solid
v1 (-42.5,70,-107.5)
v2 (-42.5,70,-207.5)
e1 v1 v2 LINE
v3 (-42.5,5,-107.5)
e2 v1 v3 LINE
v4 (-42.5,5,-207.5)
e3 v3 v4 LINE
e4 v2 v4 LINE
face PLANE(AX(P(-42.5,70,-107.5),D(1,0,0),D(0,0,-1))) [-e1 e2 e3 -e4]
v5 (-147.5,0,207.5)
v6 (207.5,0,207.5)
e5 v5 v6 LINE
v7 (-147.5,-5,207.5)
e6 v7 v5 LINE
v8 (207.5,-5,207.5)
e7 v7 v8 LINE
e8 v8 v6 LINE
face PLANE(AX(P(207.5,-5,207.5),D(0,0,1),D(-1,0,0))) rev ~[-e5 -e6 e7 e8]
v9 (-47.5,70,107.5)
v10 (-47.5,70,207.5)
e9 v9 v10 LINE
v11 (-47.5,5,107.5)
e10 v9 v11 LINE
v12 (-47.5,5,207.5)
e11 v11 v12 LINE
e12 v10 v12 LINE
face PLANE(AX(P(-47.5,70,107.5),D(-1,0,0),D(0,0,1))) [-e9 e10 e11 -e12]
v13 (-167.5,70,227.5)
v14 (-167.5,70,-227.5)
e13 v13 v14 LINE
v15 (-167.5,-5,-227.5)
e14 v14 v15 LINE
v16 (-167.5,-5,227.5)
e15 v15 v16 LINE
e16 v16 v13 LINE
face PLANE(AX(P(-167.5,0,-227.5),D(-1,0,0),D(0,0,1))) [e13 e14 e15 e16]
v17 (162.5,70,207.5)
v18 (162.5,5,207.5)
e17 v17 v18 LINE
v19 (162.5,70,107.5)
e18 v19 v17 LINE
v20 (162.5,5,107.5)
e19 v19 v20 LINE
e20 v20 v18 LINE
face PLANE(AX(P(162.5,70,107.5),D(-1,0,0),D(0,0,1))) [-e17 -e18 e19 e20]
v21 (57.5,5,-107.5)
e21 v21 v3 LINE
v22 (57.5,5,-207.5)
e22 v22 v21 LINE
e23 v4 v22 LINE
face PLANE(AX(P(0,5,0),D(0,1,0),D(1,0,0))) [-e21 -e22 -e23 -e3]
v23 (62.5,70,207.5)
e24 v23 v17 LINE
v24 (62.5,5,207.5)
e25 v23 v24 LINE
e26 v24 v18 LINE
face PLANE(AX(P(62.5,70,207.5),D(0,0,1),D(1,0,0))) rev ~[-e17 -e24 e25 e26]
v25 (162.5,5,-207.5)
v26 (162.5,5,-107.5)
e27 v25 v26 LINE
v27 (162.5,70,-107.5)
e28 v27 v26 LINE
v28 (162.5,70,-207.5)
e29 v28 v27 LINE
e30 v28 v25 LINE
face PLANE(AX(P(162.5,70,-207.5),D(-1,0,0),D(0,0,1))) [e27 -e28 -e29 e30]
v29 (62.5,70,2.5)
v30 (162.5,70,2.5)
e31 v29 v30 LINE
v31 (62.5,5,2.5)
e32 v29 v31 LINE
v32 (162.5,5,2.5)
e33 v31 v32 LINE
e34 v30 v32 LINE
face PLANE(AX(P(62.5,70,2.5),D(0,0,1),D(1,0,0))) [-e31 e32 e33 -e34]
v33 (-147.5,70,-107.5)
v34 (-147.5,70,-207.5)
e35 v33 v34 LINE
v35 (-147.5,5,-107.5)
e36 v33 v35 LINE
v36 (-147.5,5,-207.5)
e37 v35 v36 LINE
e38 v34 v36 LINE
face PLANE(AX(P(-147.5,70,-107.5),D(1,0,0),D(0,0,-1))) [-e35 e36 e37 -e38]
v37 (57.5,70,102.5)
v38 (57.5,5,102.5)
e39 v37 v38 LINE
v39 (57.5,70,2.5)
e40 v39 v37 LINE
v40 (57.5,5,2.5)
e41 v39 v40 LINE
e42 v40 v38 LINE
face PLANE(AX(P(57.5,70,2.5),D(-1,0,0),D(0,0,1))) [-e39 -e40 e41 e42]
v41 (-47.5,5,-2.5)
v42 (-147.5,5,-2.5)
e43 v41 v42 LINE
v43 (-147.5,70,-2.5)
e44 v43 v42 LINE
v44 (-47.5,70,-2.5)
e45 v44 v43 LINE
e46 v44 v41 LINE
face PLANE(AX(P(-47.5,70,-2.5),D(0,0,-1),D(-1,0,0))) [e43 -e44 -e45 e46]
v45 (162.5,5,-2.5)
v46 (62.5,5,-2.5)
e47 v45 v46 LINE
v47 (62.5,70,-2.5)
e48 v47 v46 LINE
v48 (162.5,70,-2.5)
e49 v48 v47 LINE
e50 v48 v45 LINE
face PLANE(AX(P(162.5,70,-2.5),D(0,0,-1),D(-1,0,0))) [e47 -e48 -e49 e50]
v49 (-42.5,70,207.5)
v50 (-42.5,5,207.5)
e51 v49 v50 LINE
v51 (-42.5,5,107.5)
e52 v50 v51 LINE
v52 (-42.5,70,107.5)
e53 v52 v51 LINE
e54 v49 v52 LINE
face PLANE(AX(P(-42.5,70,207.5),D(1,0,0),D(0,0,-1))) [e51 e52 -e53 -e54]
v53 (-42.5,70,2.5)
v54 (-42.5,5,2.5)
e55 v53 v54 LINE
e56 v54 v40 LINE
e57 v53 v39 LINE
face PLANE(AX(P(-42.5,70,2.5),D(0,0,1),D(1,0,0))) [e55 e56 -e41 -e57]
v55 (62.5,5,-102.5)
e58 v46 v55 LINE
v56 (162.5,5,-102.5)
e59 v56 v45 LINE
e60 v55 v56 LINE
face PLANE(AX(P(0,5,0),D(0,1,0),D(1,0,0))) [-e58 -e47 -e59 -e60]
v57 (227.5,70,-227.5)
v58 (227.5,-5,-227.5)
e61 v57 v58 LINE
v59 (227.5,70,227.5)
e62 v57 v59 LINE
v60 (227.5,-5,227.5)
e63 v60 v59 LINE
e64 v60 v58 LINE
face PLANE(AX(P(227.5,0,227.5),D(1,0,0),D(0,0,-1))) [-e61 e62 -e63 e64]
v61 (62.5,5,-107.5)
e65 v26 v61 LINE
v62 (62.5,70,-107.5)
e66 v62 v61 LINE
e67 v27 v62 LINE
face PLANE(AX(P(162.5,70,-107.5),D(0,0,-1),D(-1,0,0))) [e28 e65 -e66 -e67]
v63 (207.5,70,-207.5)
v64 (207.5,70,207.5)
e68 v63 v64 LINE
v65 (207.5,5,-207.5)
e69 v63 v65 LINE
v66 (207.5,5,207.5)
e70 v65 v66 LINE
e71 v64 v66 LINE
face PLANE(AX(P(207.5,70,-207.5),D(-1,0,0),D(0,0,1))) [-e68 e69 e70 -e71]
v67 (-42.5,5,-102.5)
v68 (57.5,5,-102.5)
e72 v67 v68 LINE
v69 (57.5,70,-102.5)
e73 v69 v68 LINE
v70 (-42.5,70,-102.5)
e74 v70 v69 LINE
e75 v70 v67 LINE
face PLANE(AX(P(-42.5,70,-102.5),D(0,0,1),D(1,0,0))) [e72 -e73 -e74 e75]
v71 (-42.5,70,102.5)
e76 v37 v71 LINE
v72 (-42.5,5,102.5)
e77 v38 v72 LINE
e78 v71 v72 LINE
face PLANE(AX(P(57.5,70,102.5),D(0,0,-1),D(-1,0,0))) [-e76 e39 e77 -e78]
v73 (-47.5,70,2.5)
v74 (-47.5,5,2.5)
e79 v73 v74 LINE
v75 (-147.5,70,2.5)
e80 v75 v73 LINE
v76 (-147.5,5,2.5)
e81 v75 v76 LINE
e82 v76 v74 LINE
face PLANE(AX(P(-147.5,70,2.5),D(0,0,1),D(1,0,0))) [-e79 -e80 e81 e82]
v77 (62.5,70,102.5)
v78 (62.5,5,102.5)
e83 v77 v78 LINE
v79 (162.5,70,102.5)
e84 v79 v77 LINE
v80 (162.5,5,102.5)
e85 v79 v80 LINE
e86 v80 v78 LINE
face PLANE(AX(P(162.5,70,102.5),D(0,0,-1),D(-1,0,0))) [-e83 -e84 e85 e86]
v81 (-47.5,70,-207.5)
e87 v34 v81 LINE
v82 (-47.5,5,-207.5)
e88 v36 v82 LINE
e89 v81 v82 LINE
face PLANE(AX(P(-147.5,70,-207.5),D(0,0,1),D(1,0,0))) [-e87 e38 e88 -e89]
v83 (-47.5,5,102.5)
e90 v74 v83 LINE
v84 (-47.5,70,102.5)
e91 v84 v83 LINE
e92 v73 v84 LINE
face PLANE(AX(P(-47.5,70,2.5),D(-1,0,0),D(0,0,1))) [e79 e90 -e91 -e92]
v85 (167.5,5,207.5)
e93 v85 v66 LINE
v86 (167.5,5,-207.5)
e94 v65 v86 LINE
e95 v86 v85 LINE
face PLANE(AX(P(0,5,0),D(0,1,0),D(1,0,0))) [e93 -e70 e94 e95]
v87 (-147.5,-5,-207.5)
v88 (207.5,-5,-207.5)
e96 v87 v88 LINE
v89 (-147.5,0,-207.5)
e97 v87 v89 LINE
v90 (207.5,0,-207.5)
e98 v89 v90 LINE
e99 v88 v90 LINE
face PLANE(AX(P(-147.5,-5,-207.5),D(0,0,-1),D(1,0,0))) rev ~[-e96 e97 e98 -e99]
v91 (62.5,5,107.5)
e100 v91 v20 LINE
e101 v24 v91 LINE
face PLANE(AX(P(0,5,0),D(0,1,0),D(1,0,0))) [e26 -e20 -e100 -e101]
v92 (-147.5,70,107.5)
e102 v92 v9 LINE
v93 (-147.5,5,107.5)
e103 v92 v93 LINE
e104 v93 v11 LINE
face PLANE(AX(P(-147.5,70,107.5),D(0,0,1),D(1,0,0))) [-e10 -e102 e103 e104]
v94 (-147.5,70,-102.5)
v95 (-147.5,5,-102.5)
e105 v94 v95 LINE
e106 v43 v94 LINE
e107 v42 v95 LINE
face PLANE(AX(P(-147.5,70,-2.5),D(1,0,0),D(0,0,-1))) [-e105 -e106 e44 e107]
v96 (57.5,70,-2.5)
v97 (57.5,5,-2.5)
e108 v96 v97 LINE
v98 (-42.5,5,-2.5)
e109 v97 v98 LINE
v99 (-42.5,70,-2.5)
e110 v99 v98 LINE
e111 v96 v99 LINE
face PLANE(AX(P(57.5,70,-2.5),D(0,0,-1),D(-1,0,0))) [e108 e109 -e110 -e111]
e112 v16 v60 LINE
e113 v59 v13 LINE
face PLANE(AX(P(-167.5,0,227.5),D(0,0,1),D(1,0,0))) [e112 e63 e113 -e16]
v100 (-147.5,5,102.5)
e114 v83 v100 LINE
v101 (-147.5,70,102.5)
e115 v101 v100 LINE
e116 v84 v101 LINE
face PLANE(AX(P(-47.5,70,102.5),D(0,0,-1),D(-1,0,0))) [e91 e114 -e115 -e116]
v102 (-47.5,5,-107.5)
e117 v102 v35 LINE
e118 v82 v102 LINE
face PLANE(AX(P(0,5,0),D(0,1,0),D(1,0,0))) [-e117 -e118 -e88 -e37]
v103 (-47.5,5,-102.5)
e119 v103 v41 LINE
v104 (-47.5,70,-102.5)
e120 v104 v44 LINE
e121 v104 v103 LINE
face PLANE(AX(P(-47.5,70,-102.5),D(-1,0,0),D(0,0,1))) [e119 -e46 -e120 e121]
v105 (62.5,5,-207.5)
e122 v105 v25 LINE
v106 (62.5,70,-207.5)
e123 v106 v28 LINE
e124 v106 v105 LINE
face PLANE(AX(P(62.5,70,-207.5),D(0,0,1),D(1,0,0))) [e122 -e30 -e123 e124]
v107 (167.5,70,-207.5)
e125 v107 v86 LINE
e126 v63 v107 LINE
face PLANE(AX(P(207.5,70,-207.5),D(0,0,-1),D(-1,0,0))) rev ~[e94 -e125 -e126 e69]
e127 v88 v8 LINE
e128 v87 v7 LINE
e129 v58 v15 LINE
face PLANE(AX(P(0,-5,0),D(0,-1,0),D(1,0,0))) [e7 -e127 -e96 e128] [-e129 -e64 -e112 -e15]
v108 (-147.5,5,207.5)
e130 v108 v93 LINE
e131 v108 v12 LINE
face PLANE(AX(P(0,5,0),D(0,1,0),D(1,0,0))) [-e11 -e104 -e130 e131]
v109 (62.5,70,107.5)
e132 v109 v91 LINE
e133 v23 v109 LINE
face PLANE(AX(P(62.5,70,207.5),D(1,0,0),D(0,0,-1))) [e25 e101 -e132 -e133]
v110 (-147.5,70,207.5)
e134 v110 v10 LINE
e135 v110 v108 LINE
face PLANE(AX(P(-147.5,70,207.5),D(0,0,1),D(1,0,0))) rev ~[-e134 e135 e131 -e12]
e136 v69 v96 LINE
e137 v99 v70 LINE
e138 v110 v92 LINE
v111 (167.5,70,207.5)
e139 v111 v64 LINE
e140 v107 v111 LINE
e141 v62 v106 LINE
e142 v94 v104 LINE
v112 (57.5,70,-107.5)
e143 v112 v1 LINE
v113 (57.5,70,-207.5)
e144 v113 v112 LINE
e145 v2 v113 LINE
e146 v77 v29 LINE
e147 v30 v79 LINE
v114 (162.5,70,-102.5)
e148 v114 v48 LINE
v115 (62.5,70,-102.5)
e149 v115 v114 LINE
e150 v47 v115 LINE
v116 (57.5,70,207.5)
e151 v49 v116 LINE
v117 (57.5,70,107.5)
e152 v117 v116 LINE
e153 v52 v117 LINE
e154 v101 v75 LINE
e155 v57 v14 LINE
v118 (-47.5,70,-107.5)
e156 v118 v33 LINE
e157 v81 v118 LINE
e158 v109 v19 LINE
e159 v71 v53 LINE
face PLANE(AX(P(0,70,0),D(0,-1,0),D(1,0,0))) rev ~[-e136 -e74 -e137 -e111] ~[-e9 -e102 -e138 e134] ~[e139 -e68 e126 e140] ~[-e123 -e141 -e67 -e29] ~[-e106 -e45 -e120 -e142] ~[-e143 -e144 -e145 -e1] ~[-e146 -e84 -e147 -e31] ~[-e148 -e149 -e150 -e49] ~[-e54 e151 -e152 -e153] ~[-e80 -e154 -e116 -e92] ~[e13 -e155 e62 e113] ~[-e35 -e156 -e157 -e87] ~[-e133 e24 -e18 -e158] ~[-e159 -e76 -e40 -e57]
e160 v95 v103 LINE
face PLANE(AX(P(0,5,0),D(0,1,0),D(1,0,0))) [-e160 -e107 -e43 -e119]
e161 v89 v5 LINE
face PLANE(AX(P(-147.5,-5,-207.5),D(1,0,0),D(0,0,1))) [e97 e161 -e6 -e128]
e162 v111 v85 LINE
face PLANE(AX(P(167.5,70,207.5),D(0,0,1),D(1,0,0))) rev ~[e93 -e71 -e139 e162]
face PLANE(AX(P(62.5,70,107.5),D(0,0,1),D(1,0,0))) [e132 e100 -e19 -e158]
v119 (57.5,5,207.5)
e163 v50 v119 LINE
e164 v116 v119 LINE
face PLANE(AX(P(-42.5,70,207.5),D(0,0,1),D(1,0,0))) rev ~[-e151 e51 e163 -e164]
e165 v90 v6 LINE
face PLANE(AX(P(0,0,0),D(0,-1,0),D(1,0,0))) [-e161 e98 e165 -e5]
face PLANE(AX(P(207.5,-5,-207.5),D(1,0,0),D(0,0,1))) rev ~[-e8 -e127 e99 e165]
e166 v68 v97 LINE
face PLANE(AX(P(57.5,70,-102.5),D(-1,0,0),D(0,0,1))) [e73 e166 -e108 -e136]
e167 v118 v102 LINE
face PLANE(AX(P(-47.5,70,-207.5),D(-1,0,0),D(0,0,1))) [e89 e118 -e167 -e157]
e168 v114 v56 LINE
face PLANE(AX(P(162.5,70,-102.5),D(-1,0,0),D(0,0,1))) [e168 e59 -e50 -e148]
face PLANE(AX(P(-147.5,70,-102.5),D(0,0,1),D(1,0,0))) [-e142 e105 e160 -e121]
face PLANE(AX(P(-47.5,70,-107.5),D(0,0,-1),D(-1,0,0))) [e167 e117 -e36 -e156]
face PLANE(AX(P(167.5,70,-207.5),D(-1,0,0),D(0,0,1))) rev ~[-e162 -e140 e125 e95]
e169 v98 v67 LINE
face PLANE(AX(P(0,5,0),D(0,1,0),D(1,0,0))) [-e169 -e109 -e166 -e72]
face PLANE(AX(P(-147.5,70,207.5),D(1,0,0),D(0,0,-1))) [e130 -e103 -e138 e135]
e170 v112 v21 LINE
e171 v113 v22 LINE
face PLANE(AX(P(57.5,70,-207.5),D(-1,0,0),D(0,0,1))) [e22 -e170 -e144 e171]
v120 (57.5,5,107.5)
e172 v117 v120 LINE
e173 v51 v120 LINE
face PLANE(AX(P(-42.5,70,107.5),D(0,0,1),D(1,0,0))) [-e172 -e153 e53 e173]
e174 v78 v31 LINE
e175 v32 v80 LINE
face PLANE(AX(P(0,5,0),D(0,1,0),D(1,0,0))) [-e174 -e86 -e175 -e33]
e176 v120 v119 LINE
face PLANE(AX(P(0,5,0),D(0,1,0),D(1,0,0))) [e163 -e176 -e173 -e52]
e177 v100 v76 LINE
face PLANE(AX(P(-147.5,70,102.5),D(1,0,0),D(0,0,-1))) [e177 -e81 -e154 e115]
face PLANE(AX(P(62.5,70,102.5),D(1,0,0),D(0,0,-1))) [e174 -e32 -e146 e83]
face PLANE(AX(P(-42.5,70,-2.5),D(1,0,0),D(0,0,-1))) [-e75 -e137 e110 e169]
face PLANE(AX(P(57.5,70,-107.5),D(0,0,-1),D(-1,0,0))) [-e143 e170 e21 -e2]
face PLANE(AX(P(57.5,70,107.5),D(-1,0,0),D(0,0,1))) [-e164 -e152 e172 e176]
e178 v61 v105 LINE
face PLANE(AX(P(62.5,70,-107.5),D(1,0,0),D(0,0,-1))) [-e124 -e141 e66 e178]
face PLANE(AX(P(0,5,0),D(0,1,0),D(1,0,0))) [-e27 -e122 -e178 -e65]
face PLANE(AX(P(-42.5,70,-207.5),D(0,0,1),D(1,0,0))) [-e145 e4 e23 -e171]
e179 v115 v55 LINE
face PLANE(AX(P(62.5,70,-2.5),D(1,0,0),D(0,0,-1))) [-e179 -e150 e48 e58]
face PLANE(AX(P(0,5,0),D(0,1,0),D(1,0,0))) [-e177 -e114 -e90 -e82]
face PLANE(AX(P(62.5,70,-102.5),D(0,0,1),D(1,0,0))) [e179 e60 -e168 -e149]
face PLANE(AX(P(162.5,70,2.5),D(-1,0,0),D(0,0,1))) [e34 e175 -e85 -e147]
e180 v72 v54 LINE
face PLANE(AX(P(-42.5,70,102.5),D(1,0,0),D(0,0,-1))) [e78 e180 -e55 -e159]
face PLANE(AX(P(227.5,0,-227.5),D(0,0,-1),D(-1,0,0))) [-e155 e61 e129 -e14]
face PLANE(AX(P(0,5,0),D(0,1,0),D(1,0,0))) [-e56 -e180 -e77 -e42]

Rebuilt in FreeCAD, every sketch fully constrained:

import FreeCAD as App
import Part
import Sketcher
from FreeCAD import Vector
Q = App.Units.Quantity


def add_polygon(sketch, points):
    """Adds a closed chain of lines whose ends are joined by coincident constraints."""
    first, n = sketch.GeometryCount, len(points)
    for a, b in zip(points, points[1:] + points[:1]):
        sketch.addGeometry(Part.LineSegment(App.Vector(*a, 0), App.Vector(*b, 0)), False)
    for i in range(n):
        sketch.addConstraint(Sketcher.Constraint("Coincident", first + i, 2, first + (i + 1) % n, 1))

doc = App.newDocument("Part")
body = doc.addObject("PartDesign::Body", "Body")

# Sketch on XZ plane
sketch1 = body.newObject("Sketcher::SketchObject", "Sketch")
sketch1.AttachmentSupport = (doc.getObject("XZ_Plane"), [""])
sketch1.MapMode = "FlatFace"
add_polygon(sketch1, [(167.5, -227.5), (-167.5, -227.5), (-167.5, 227.5), (167.5, 227.5)])  # lines 0-3
sketch1.addConstraint([
    Sketcher.Constraint("Horizontal", 0),
    Sketcher.Constraint("Vertical", 1),
    Sketcher.Constraint("Horizontal", 2),
    Sketcher.Constraint("Vertical", 3),
    Sketcher.Constraint("Symmetric", 0, 2, 2, 2, -1, 1),
    Sketcher.Constraint("DistanceX", 0, 2, 0, 1, Q("335 mm")),
    Sketcher.Constraint("DistanceY", 1, 1, 1, 2, Q("455 mm")),
])
pad1 = body.newObject("PartDesign::Pad", "Pad")
pad1.Profile = sketch1
pad1.Length = 70
pad1.Reversed = True

# Sketch on XZ plane
sketch2 = body.newObject("Sketcher::SketchObject", "Sketch001")
sketch2.AttachmentSupport = (doc.getObject("XZ_Plane"), [""])
sketch2.MapMode = "FlatFace"
sketch2.AttachmentOffset = App.Placement(Vector(0, 0, -70), App.Rotation())
add_polygon(sketch2, [(162.5, -107.5), (162.5, -207.5), (62.5, -207.5), (62.5, -107.5)])  # lines 0-3
add_polygon(sketch2, [(62.5, 207.5), (162.5, 207.5), (162.5, 107.5), (62.5, 107.5)])  # lines 4-7
add_polygon(sketch2, [(-47.5, -207.5), (-147.5, -207.5), (-147.5, -107.5), (-47.5, -107.5)])  # lines 8-11
add_polygon(sketch2, [(57.5, -107.5), (57.5, -207.5), (-42.5, -207.5), (-42.5, -107.5)])  # lines 12-15
add_polygon(sketch2, [(162.5, -2.5), (162.5, -102.5), (62.5, -102.5), (62.5, -2.5)])  # lines 16-19
add_polygon(sketch2, [(-147.5, 107.5), (-147.5, 207.5), (-47.5, 207.5), (-47.5, 107.5)])  # lines 20-23
add_polygon(sketch2, [(-42.5, 207.5), (57.5, 207.5), (57.5, 107.5), (-42.5, 107.5)])  # lines 24-27
add_polygon(sketch2, [(62.5, 102.5), (162.5, 102.5), (162.5, 2.5), (62.5, 2.5)])  # lines 28-31
add_polygon(sketch2, [(-147.5, -102.5), (-147.5, -2.5), (-47.5, -2.5), (-47.5, -102.5)])  # lines 32-35
add_polygon(sketch2, [(-42.5, -102.5), (-42.5, -2.5), (57.5, -2.5), (57.5, -102.5)])  # lines 36-39
add_polygon(sketch2, [(-147.5, 2.5), (-147.5, 102.5), (-47.5, 102.5), (-47.5, 2.5)])  # lines 40-43
add_polygon(sketch2, [(-42.5, 2.5), (-42.5, 102.5), (57.5, 102.5), (57.5, 2.5)])  # lines 44-47
sketch2.addConstraint([
    Sketcher.Constraint("Vertical", 0),
    Sketcher.Constraint("Horizontal", 1),
    Sketcher.Constraint("Vertical", 2),
    Sketcher.Constraint("Horizontal", 3),
    Sketcher.Constraint("Horizontal", 4),
    Sketcher.Constraint("Vertical", 5),
    Sketcher.Constraint("Horizontal", 6),
    Sketcher.Constraint("Vertical", 7),
    Sketcher.Constraint("Horizontal", 8),
    Sketcher.Constraint("Vertical", 9),
    Sketcher.Constraint("Horizontal", 10),
    Sketcher.Constraint("Vertical", 11),
    Sketcher.Constraint("Vertical", 12),
    Sketcher.Constraint("Horizontal", 13),
    Sketcher.Constraint("Vertical", 14),
    Sketcher.Constraint("Horizontal", 15),
    Sketcher.Constraint("Vertical", 16),
    Sketcher.Constraint("Horizontal", 17),
    Sketcher.Constraint("Vertical", 18),
    Sketcher.Constraint("Horizontal", 19),
    Sketcher.Constraint("Vertical", 20),
    Sketcher.Constraint("Horizontal", 21),
    Sketcher.Constraint("Vertical", 22),
    Sketcher.Constraint("Horizontal", 23),
    Sketcher.Constraint("Horizontal", 24),
    Sketcher.Constraint("Vertical", 25),
    Sketcher.Constraint("Horizontal", 26),
    Sketcher.Constraint("Vertical", 27),
    Sketcher.Constraint("Horizontal", 28),
    Sketcher.Constraint("Vertical", 29),
    Sketcher.Constraint("Horizontal", 30),
    Sketcher.Constraint("Vertical", 31),
    Sketcher.Constraint("Vertical", 32),
    Sketcher.Constraint("Horizontal", 33),
    Sketcher.Constraint("Vertical", 34),
    Sketcher.Constraint("Horizontal", 35),
    Sketcher.Constraint("Vertical", 36),
    Sketcher.Constraint("Horizontal", 37),
    Sketcher.Constraint("Vertical", 38),
    Sketcher.Constraint("Horizontal", 39),
    Sketcher.Constraint("Vertical", 40),
    Sketcher.Constraint("Horizontal", 41),
    Sketcher.Constraint("Vertical", 42),
    Sketcher.Constraint("Horizontal", 43),
    Sketcher.Constraint("Vertical", 44),
    Sketcher.Constraint("Horizontal", 45),
    Sketcher.Constraint("Vertical", 46),
    Sketcher.Constraint("Horizontal", 47),
    Sketcher.Constraint("Symmetric", 0, 2, 4, 2, -1),
    Sketcher.Constraint("Symmetric", 2, 2, 6, 2, -1),
    Sketcher.Constraint("Symmetric", 8, 2, 20, 2, -1),
    Sketcher.Constraint("Symmetric", 10, 2, 22, 2, -1),
    Sketcher.Constraint("Symmetric", 12, 2, 24, 2, -1),
    Sketcher.Constraint("Symmetric", 14, 2, 26, 2, -1),
    Sketcher.Constraint("Symmetric", 16, 2, 28, 2, -1),
    Sketcher.Constraint("Symmetric", 18, 2, 30, 2, -1),
    Sketcher.Constraint("Symmetric", 35, 2, 40, 2, -1),
    Sketcher.Constraint("Symmetric", 33, 2, 42, 2, -1),
    Sketcher.Constraint("Symmetric", 39, 2, 44, 2, -1),
    Sketcher.Constraint("Symmetric", 37, 2, 46, 2, -1),
    Sketcher.Constraint("Horizontal", 1, 2, 8, 2),
    Sketcher.Constraint("Horizontal", 3, 2, 9, 2),
    Sketcher.Constraint("Horizontal", 11, 2, 12, 2),
    Sketcher.Constraint("Horizontal", 10, 2, 14, 2),
    Sketcher.Constraint("Horizontal", 19, 2, 32, 2),
    Sketcher.Constraint("Horizontal", 17, 2, 34, 2),
    Sketcher.Constraint("Horizontal", 33, 2, 36, 2),
    Sketcher.Constraint("Horizontal", 35, 2, 38, 2),
    Sketcher.Constraint("Vertical", 5, 2, 16, 2),
    Sketcher.Constraint("Vertical", 7, 2, 17, 2),
    Sketcher.Constraint("Vertical", 23, 2, 32, 2),
    Sketcher.Constraint("Vertical", 22, 2, 33, 2),
    Sketcher.Constraint("Vertical", 27, 2, 36, 2),
    Sketcher.Constraint("Vertical", 25, 2, 37, 2),
    Sketcher.Constraint("Equal", 6, 8),
    Sketcher.Constraint("Equal", 10, 13),
    Sketcher.Constraint("Equal", 47, 0),
    Sketcher.Constraint("Equal", 14, 16),
    Sketcher.Constraint("DistanceX", 1, 2, 1, 1, Q("100 mm")),
    Sketcher.Constraint("DistanceX", 12, 2, 1, 2, Q("5 mm")),
    Sketcher.Constraint("DistanceX", 11, 2, 12, 2, Q("105 mm")),
    Sketcher.Constraint("DistanceY", 3, 2, 16, 2, Q("5 mm")),
    Sketcher.Constraint("DistanceY", 19, 2, 28, 2, Q("105 mm")),
    Sketcher.Constraint("DistanceX", -1, 1, 0, 2, Q("162.5 mm")),
])
pocket1 = body.newObject("PartDesign::Pocket", "Pocket")
pocket1.Profile = sketch2
pocket1.Length = 65
pocket1.Reversed = True

# Sketch on XZ plane
sketch3 = body.newObject("Sketcher::SketchObject", "Sketch002")
sketch3.AttachmentSupport = (doc.getObject("XZ_Plane"), [""])
sketch3.MapMode = "FlatFace"
add_polygon(sketch3, [(167.5, 227.5), (167.5, -227.5), (227.5, -227.5), (227.5, 227.5)])  # lines 0-3
sketch3.addConstraint([
    Sketcher.Constraint("Vertical", 0),
    Sketcher.Constraint("Horizontal", 1),
    Sketcher.Constraint("Vertical", 2),
    Sketcher.Constraint("Horizontal", 3),
    Sketcher.Constraint("DistanceX", 1, 1, 1, 2, Q("60 mm")),
    Sketcher.Constraint("DistanceY", 0, 2, 0, 1, Q("455 mm")),
    Sketcher.Constraint("DistanceX", -1, 1, 0, 2, Q("167.5 mm")),
    Sketcher.Constraint("DistanceY", 0, 2, -1, 1, Q("227.5 mm")),
])
pad2 = body.newObject("PartDesign::Pad", "Pad001")
pad2.Profile = sketch3
pad2.Length = 70
pad2.Reversed = True

# Sketch on XZ plane
sketch4 = body.newObject("Sketcher::SketchObject", "Sketch003")
sketch4.AttachmentSupport = (doc.getObject("XZ_Plane"), [""])
sketch4.MapMode = "FlatFace"
sketch4.AttachmentOffset = App.Placement(Vector(0, 0, -70), App.Rotation())
add_polygon(sketch4, [(207.5, 207.5), (207.5, -207.5), (167.5, -207.5), (167.5, 207.5)])  # lines 0-3
sketch4.addConstraint([
    Sketcher.Constraint("Vertical", 0),
    Sketcher.Constraint("Horizontal", 1),
    Sketcher.Constraint("Vertical", 2),
    Sketcher.Constraint("Horizontal", 3),
    Sketcher.Constraint("DistanceX", 1, 2, 1, 1, Q("40 mm")),
    Sketcher.Constraint("DistanceY", 0, 2, 0, 1, Q("415 mm")),
    Sketcher.Constraint("DistanceX", -1, 1, 0, 2, Q("207.5 mm")),
    Sketcher.Constraint("DistanceY", 0, 2, -1, 1, Q("207.5 mm")),
])
pocket2 = body.newObject("PartDesign::Pocket", "Pocket001")
pocket2.Profile = sketch4
pocket2.Length = 65
pocket2.Reversed = True

# Sketch on XZ plane
sketch5 = body.newObject("Sketcher::SketchObject", "Sketch004")
sketch5.AttachmentSupport = (doc.getObject("XZ_Plane"), [""])
sketch5.MapMode = "FlatFace"
add_polygon(sketch5, [(-167.5, 227.5), (-167.5, -227.5), (227.5, -227.5), (227.5, 227.5)])  # lines 0-3
sketch5.addConstraint([
    Sketcher.Constraint("Vertical", 0),
    Sketcher.Constraint("Horizontal", 1),
    Sketcher.Constraint("Vertical", 2),
    Sketcher.Constraint("Horizontal", 3),
    Sketcher.Constraint("DistanceX", 1, 1, 1, 2, Q("395 mm")),
    Sketcher.Constraint("DistanceY", 0, 2, 0, 1, Q("455 mm")),
    Sketcher.Constraint("DistanceX", 0, 2, -1, 1, Q("167.5 mm")),
    Sketcher.Constraint("DistanceY", 0, 2, -1, 1, Q("227.5 mm")),
])
pad3 = body.newObject("PartDesign::Pad", "Pad002")
pad3.Profile = sketch5
pad3.Length = 5

# Sketch on XZ plane
sketch6 = body.newObject("Sketcher::SketchObject", "Sketch005")
sketch6.AttachmentSupport = (doc.getObject("XZ_Plane"), [""])
sketch6.MapMode = "FlatFace"
sketch6.AttachmentOffset = App.Placement(Vector(0, 0, 5), App.Rotation())
add_polygon(sketch6, [(-147.5, 207.5), (-147.5, -207.5), (207.5, -207.5), (207.5, 207.5)])  # lines 0-3
sketch6.addConstraint([
    Sketcher.Constraint("Vertical", 0),
    Sketcher.Constraint("Horizontal", 1),
    Sketcher.Constraint("Vertical", 2),
    Sketcher.Constraint("Horizontal", 3),
    Sketcher.Constraint("DistanceX", 1, 1, 1, 2, Q("355 mm")),
    Sketcher.Constraint("DistanceY", 0, 2, 0, 1, Q("415 mm")),
    Sketcher.Constraint("DistanceX", 0, 2, -1, 1, Q("147.5 mm")),
    Sketcher.Constraint("DistanceY", 0, 2, -1, 1, Q("207.5 mm")),
])
pocket3 = body.newObject("PartDesign::Pocket", "Pocket002")
pocket3.Profile = sketch6
pocket3.Length = 5

doc.recompute()
